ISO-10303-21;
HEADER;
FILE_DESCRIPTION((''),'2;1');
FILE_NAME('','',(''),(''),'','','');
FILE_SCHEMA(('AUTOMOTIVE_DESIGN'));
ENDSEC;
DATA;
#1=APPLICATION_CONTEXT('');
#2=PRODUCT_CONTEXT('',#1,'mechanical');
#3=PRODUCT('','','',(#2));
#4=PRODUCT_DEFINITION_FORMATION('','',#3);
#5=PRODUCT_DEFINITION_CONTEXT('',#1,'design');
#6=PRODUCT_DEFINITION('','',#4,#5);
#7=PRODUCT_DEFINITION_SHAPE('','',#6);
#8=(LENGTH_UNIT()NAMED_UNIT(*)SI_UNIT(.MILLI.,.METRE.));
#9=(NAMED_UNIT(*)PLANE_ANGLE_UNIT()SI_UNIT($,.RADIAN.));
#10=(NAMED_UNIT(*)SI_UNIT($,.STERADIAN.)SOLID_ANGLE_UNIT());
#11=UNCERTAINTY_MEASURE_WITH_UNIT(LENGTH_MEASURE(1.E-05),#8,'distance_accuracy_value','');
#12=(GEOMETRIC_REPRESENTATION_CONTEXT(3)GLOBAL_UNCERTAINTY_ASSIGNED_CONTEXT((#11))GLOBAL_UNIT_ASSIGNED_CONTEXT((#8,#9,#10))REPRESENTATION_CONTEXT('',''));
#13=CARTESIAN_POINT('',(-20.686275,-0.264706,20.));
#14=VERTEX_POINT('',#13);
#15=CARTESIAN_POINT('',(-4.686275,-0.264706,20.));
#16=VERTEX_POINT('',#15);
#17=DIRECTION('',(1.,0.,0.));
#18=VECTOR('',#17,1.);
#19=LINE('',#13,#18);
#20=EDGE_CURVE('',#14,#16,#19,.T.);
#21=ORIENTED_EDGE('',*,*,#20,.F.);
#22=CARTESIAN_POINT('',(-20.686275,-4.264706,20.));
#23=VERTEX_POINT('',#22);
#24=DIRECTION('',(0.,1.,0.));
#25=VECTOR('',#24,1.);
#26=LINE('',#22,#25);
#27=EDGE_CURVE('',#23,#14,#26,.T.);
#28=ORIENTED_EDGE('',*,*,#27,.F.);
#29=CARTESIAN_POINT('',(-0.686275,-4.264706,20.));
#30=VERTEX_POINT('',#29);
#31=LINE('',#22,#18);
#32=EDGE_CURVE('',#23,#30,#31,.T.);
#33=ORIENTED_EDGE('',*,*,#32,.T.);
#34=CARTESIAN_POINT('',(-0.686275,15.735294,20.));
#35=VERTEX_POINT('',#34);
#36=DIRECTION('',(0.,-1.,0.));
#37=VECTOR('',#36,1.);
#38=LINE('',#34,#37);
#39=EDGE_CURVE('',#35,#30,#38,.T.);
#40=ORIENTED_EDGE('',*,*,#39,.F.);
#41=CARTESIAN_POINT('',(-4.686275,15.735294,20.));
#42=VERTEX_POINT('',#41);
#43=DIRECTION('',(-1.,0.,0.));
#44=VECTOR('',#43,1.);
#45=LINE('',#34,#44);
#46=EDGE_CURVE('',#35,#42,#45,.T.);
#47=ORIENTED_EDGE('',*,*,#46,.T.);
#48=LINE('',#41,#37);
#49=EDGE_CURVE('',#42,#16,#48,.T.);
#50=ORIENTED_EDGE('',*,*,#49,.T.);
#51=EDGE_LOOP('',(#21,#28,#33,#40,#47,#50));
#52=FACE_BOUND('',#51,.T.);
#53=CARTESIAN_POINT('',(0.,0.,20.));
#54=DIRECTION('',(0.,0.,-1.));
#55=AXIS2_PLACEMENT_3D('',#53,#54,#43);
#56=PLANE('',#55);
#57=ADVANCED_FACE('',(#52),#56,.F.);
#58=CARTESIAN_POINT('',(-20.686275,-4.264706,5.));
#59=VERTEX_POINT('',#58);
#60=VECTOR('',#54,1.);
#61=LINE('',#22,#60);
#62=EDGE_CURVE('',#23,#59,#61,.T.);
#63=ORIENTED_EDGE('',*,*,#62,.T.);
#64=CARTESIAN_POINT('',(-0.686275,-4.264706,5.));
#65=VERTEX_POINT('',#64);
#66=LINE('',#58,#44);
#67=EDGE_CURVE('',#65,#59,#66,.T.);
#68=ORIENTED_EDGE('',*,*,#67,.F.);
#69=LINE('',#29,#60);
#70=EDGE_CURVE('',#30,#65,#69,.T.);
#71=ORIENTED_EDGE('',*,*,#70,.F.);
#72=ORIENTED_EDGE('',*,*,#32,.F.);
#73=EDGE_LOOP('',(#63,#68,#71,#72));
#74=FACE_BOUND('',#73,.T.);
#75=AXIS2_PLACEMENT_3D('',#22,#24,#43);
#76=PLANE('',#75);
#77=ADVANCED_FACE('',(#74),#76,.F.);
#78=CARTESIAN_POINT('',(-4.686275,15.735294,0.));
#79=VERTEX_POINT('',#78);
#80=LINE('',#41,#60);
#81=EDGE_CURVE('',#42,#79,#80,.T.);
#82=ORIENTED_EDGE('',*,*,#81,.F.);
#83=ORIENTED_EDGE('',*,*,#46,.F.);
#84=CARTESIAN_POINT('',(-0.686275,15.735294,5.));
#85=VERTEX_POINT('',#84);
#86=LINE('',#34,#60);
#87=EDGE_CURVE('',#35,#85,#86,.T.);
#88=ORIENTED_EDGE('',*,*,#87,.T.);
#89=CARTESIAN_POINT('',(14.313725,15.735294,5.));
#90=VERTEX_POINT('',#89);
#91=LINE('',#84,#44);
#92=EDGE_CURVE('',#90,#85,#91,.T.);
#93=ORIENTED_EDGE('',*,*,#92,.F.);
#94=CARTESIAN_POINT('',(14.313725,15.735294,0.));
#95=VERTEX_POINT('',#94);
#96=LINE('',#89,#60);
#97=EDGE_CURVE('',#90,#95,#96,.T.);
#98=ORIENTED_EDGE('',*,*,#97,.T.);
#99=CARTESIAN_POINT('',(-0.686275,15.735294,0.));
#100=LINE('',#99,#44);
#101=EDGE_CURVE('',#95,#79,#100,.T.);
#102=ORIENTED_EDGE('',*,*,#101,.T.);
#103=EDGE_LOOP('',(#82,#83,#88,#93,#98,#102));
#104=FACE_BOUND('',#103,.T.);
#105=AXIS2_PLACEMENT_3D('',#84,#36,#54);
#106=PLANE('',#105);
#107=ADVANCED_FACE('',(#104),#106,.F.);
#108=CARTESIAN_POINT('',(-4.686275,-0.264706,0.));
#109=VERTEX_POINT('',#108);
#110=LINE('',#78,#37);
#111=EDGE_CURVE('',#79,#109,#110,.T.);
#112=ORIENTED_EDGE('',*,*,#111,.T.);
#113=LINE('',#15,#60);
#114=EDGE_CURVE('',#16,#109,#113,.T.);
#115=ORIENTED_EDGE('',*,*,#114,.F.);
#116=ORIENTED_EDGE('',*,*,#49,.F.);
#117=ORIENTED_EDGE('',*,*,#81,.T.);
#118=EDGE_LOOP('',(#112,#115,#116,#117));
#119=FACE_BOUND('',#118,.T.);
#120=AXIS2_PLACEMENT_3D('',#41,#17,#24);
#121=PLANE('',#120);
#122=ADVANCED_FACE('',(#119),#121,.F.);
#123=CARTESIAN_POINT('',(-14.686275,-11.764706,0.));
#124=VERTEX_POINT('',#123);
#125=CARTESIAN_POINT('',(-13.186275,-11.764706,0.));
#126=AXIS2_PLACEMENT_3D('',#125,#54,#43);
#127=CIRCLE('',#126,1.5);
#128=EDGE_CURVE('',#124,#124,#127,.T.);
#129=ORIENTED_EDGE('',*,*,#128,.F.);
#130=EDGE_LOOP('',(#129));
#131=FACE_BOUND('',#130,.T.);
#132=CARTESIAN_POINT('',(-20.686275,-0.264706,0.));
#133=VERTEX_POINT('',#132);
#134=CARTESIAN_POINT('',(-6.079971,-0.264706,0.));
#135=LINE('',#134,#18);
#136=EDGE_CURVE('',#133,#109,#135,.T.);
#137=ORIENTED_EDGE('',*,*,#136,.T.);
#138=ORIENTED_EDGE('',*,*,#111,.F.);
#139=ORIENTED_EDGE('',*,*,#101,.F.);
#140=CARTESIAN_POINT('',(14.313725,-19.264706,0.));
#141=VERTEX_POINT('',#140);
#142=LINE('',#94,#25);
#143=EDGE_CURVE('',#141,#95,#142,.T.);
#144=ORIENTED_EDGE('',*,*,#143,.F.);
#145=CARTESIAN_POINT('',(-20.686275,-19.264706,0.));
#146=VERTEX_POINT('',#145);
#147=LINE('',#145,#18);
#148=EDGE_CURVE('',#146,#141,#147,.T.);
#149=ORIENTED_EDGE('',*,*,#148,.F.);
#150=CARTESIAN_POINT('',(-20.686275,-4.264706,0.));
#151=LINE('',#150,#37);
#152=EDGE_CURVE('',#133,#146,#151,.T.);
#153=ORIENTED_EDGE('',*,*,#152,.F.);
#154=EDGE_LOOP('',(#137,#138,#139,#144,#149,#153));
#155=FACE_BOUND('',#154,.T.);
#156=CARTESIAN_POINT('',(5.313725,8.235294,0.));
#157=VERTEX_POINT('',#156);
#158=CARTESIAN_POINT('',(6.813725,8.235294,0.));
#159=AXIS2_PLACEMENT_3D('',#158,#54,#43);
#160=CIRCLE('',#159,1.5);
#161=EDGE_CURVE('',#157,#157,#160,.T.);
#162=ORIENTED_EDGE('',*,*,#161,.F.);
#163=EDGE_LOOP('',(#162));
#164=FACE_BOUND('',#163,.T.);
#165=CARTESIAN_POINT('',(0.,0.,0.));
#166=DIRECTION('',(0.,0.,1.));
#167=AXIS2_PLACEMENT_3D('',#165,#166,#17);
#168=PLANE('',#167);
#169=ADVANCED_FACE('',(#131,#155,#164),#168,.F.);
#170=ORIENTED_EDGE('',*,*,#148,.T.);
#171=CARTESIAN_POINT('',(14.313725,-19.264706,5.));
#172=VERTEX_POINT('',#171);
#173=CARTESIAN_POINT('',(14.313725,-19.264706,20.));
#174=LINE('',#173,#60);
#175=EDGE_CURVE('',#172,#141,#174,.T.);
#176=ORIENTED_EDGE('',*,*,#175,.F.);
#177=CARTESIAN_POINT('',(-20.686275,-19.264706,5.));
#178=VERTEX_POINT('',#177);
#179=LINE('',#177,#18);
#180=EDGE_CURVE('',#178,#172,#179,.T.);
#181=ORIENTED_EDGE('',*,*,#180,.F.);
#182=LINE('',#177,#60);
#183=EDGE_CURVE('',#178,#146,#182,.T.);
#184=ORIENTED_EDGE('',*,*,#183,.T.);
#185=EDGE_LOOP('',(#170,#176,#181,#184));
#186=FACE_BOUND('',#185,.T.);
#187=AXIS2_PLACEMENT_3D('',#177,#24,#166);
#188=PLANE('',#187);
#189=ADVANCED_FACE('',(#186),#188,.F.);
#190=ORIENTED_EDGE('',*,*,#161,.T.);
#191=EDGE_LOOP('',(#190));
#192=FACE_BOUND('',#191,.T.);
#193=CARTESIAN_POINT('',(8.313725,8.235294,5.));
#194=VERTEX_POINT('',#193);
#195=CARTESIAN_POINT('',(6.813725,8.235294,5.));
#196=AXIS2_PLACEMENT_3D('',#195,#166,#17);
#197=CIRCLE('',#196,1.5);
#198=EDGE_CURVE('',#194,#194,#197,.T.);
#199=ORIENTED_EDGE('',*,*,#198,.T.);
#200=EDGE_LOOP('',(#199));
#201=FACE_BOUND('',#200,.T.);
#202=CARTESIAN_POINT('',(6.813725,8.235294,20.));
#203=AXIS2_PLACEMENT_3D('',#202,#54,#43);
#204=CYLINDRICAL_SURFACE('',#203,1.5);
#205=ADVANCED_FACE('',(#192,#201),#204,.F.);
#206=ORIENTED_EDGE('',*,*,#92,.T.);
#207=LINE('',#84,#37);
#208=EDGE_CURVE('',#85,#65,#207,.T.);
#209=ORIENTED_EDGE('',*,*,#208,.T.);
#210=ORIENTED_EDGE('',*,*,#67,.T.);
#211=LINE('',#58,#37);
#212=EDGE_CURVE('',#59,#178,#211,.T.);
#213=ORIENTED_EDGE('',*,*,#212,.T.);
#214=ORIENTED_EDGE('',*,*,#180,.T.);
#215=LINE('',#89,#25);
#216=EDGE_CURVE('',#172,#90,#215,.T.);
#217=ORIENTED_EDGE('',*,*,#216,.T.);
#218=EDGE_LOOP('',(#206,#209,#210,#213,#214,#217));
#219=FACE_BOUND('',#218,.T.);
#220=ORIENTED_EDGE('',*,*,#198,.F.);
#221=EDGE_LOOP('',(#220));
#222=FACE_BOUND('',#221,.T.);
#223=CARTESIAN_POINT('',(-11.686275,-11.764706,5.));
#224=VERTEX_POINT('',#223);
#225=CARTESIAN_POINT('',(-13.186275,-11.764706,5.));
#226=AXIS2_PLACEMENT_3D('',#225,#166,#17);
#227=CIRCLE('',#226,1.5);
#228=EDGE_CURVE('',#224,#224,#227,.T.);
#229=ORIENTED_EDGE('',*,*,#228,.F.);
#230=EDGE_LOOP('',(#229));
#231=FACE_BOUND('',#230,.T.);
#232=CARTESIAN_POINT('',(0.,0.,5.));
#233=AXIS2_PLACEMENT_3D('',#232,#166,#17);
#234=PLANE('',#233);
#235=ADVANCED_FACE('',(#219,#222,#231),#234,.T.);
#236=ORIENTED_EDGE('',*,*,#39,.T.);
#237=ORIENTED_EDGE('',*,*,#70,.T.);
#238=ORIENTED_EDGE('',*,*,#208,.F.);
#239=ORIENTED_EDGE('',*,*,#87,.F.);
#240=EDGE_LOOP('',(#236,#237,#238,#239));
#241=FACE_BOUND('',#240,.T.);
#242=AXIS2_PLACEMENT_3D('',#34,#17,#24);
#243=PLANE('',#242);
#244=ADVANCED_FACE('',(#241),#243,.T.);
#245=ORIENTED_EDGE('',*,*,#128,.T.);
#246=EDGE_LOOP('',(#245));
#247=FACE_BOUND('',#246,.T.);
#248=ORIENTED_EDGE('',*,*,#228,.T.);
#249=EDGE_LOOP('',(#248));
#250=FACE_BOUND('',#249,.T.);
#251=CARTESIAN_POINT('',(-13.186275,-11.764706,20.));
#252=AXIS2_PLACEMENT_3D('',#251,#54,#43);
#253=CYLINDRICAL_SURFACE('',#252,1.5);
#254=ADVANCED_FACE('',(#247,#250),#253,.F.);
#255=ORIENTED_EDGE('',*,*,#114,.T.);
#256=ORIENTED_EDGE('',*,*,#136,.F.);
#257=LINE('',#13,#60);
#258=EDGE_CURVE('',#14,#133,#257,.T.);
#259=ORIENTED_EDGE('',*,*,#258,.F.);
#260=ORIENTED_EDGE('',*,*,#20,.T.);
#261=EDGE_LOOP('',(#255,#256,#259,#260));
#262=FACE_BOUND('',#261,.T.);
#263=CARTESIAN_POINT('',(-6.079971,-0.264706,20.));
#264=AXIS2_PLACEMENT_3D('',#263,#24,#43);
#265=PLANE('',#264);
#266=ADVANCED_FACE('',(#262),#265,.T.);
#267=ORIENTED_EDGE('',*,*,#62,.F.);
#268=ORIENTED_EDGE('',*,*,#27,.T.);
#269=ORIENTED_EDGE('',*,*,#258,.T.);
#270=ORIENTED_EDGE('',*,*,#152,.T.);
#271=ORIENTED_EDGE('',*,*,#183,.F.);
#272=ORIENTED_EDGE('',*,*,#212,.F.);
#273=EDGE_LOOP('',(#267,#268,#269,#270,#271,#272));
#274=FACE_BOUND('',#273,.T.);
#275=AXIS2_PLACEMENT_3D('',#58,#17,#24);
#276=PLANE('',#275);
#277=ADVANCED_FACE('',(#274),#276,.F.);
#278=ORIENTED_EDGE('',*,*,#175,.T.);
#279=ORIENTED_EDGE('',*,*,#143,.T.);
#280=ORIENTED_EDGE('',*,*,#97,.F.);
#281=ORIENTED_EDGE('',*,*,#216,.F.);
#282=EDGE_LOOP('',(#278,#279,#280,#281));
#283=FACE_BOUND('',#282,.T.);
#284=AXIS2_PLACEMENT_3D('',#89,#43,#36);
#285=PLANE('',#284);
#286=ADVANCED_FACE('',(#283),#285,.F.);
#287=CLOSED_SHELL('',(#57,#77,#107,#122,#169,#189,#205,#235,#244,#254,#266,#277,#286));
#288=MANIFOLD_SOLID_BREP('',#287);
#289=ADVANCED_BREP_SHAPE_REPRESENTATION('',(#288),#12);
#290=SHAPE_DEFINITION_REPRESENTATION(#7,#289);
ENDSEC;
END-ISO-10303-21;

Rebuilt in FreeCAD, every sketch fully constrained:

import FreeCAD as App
import Part
import Sketcher
Q = App.Units.Quantity


def add_polygon(sketch, points):
    """Adds a closed chain of lines whose ends are joined by coincident constraints."""
    first, n = sketch.GeometryCount, len(points)
    for a, b in zip(points, points[1:] + points[:1]):
        sketch.addGeometry(Part.LineSegment(App.Vector(*a, 0), App.Vector(*b, 0)), False)
    for i in range(n):
        sketch.addConstraint(Sketcher.Constraint("Coincident", first + i, 2, first + (i + 1) % n, 1))

doc = App.newDocument("Part")
params = doc.addObject("Spreadsheet::Sheet", "Params")
for row, (alias, value) in enumerate([
    ("sketch1_width", "20 mm"),
    ("sketch1_width2", "15 mm"),
    ("pad1_length", "5 mm"),
    ("sketch2_width", "4 mm"),
    ("sketch2_width2", "20 mm"),
    ("pad2_length", "20 mm"),
    ("sketch3_width", "20 mm"),
    ("sketch3_height", "15 mm"),
    ("sketch4_diameter", "3 mm"),
], start=1):
    params.set(f"A{row}", alias)
    params.set(f"B{row}", "=" + value)
    params.setAlias(f"B{row}", alias)

body = doc.addObject("PartDesign::Body", "Body")

sketch1 = body.newObject("Sketcher::SketchObject", "Sketch")
sketch1.AttachmentSupport = (doc.getObject("XY_Plane"), [""])
sketch1.MapMode = "FlatFace"
add_polygon(sketch1, [(34, -4), (14, -4), (14, 16), (-1, 16), (-1, -4), (-21, -4), (-21, -19), (34, -19)])
sketch1.addConstraint([
    Sketcher.Constraint("Horizontal", 0),
    Sketcher.Constraint("Vertical", 1),
    Sketcher.Constraint("Horizontal", 2),
    Sketcher.Constraint("Vertical", 3),
    Sketcher.Constraint("Horizontal", 4),
    Sketcher.Constraint("Vertical", 5),
    Sketcher.Constraint("Horizontal", 6),
    Sketcher.Constraint("Vertical", 7),
    Sketcher.Constraint("Horizontal", 0, 2, 3, 2),
    Sketcher.Constraint("Equal", 0, 4),
    Sketcher.Constraint("Equal", 4, 1),
    Sketcher.Constraint("Equal", 2, 5),
    Sketcher.Constraint("DistanceX", 0, 2, 0, 1, Q("20 mm")),
    Sketcher.Constraint("DistanceX", 2, 2, 2, 1, Q("15 mm")),
    Sketcher.Constraint("DistanceX", -1, 1, 0, 2, Q("14.313725 mm")),
    Sketcher.Constraint("DistanceY", 0, 2, -1, 1, Q("4.264706 mm")),
])
sketch1.setExpression("Constraints[20]", "Params.sketch1_width")
sketch1.setExpression("Constraints[21]", "Params.sketch1_width2")
pad1 = body.newObject("PartDesign::Pad", "Pad")
pad1.Profile = sketch1
pad1.setExpression("Length", "Params.pad1_length")

sketch2 = body.newObject("Sketcher::SketchObject", "Sketch001")
sketch2.AttachmentSupport = (doc.getObject("XY_Plane"), [""])
sketch2.MapMode = "FlatFace"
add_polygon(sketch2, [(-4.7, 15.7), (-0.7, 15.7), (-0.7, -4.3), (-20.7, -4.3), (-20.7, -0.3), (-4.7, -0.3)])
sketch2.addConstraint([
    Sketcher.Constraint("Horizontal", 0),
    Sketcher.Constraint("Vertical", 1),
    Sketcher.Constraint("Horizontal", 2),
    Sketcher.Constraint("Vertical", 3),
    Sketcher.Constraint("Horizontal", 4),
    Sketcher.Constraint("Vertical", 5),
    Sketcher.Constraint("Equal", 2, 1),
    Sketcher.Constraint("Equal", 0, 3),
    Sketcher.Constraint("DistanceX", 0, 1, 0, 2, Q("4 mm")),
    Sketcher.Constraint("DistanceX", 2, 2, 2, 1, Q("20 mm")),
    Sketcher.Constraint("DistanceX", 0, 2, -1, 1, Q("0.686275 mm")),
    Sketcher.Constraint("DistanceY", -1, 1, 0, 2, Q("15.735294 mm")),
])
sketch2.setExpression("Constraints[14]", "Params.sketch2_width")
sketch2.setExpression("Constraints[15]", "Params.sketch2_width2")
pad2 = body.newObject("PartDesign::Pad", "Pad001")
pad2.Profile = sketch2
pad2.setExpression("Length", "Params.pad2_length")

sketch3 = body.newObject("Sketcher::SketchObject", "Sketch002")
sketch3.AttachmentSupport = (doc.getObject("XY_Plane"), [""])
sketch3.MapMode = "FlatFace"
add_polygon(sketch3, [(34, -4), (34, -19), (14, -19), (14, -4)])
sketch3.addConstraint([
    Sketcher.Constraint("Vertical", 0),
    Sketcher.Constraint("Horizontal", 1),
    Sketcher.Constraint("Vertical", 2),
    Sketcher.Constraint("Horizontal", 3),
    Sketcher.Constraint("DistanceX", 1, 2, 1, 1, Q("20 mm")),
    Sketcher.Constraint("DistanceY", 0, 2, 0, 1, Q("15 mm")),
    Sketcher.Constraint("DistanceX", -1, 1, 0, 2, Q("34.313725 mm")),
    Sketcher.Constraint("DistanceY", 0, 2, -1, 1, Q("19.264706 mm")),
])
sketch3.setExpression("Constraints[8]", "Params.sketch3_width")
sketch3.setExpression("Constraints[9]", "Params.sketch3_height")
pocket1 = body.newObject("PartDesign::Pocket", "Pocket")
pocket1.Profile = sketch3
pocket1.Type = "ThroughAll"
pocket1.Reversed = True

sketch4 = body.newObject("Sketcher::SketchObject", "Sketch003")
sketch4.AttachmentSupport = (doc.getObject("XY_Plane"), [""])
sketch4.MapMode = "FlatFace"
sketch4.addGeometry([
    Part.Circle(App.Vector(6.8, 8.2, 0), App.Vector(0, 0, 1), 1.5),
    Part.Circle(App.Vector(-13.2, -11.8, 0), App.Vector(0, 0, 1), 1.5),
], False)
sketch4.addConstraint([
    Sketcher.Constraint("Equal", 0, 1),
    Sketcher.Constraint("Diameter", 0, Q("3 mm")),
    Sketcher.Constraint("DistanceX", 1, 3, 0, 3, Q("20 mm")),
    Sketcher.Constraint("DistanceY", 1, 3, 0, 3, Q("20 mm")),
    Sketcher.Constraint("DistanceX", -1, 1, 0, 3, Q("6.813725 mm")),
    Sketcher.Constraint("DistanceY", -1, 1, 0, 3, Q("8.235294 mm")),
])
sketch4.setExpression("Constraints[1]", "Params.sketch4_diameter")
pocket2 = body.newObject("PartDesign::Pocket", "Pocket001")
pocket2.Profile = sketch4
pocket2.Type = "ThroughAll"
pocket2.Reversed = True

doc.recompute()
